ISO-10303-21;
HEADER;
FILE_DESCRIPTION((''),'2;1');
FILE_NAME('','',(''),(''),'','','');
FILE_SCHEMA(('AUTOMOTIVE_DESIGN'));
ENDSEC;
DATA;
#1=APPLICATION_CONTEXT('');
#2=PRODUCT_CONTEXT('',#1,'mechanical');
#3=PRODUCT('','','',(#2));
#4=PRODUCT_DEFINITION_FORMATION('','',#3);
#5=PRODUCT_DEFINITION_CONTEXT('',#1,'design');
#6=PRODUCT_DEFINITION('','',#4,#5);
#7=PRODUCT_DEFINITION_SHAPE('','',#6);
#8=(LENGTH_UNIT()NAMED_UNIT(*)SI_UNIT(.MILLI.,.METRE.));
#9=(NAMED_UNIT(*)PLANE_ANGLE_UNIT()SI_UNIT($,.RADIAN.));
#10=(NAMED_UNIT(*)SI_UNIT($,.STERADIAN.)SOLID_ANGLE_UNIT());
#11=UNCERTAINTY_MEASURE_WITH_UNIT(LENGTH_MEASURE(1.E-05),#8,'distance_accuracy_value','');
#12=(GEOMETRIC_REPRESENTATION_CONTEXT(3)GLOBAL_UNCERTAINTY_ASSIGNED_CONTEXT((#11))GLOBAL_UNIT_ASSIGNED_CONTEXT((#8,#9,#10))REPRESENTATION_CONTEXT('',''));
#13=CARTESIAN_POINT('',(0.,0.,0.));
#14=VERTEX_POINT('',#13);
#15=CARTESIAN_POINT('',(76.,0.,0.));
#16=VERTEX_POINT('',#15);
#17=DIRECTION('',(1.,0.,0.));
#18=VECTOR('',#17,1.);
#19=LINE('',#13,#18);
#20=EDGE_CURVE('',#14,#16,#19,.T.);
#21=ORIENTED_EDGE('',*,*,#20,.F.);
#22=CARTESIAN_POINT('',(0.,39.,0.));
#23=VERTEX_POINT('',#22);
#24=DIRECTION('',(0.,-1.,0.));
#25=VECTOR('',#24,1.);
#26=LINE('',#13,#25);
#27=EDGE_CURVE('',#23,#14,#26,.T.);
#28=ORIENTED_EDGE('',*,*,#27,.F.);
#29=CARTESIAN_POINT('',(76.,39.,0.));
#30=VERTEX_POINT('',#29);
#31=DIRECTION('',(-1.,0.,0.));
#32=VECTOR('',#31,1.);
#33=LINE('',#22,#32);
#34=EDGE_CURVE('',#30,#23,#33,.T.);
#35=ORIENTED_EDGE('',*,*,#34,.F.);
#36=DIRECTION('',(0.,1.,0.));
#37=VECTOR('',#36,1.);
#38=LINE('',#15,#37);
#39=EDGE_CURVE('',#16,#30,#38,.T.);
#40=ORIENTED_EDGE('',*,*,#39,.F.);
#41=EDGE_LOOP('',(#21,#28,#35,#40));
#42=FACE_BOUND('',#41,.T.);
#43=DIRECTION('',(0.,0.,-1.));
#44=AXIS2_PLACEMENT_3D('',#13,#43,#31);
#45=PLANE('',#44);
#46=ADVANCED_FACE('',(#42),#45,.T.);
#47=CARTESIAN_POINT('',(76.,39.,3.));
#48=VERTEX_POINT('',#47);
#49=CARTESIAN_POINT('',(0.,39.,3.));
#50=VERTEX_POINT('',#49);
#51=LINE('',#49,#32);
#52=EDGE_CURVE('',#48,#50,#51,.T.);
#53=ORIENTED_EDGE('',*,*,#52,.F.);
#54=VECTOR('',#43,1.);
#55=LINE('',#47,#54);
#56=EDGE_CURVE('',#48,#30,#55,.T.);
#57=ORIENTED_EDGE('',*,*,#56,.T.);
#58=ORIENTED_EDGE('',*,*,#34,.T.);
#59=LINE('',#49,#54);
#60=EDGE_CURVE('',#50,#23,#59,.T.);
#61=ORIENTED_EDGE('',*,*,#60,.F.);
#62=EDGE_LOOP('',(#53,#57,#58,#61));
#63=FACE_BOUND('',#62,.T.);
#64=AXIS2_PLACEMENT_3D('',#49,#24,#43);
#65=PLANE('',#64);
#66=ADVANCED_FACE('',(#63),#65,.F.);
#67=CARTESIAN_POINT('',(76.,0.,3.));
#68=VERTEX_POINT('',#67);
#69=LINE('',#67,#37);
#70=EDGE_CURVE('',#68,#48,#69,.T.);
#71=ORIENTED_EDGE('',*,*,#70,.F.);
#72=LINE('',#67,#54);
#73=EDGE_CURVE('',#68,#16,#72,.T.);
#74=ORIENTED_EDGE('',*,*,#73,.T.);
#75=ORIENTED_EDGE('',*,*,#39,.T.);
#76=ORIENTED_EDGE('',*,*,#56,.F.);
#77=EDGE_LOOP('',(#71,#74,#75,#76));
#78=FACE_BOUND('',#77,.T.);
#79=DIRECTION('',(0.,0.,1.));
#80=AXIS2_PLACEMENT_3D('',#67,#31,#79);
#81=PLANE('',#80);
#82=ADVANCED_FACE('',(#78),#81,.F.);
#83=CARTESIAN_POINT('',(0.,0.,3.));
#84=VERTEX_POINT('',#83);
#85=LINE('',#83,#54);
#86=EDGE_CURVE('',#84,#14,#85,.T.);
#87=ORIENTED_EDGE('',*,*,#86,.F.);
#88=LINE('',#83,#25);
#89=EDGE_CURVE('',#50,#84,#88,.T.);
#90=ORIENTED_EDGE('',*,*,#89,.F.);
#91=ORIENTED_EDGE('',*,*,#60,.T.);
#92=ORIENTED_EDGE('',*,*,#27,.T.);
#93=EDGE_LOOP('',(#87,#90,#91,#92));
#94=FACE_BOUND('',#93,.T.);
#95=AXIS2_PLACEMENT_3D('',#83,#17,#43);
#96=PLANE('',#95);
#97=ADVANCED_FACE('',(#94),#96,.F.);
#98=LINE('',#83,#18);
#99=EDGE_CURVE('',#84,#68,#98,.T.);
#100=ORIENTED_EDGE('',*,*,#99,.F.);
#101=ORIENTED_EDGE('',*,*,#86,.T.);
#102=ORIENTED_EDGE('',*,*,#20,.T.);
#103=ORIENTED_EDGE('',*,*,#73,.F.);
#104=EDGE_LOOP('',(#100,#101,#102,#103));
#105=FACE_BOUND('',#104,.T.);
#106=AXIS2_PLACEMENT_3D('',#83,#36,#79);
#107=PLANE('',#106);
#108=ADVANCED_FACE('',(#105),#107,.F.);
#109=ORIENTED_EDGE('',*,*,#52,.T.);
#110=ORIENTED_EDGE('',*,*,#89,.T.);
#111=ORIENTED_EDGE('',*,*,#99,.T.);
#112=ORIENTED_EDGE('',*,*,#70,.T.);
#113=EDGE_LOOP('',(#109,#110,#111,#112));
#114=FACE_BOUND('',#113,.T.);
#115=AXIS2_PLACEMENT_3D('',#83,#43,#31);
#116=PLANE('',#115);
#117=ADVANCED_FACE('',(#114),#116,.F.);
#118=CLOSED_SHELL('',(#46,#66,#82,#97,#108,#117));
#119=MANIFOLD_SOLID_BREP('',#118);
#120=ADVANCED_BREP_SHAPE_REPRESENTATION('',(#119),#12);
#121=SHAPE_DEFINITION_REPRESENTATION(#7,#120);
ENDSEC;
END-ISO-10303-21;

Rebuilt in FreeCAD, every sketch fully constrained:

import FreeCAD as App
import Part
import Sketcher

V = App.Vector
Q = App.Units.Quantity

doc = App.newDocument("Part")
body = doc.addObject("PartDesign::Body", "Body")

# Sketch on XY plane
sketch1 = body.newObject("Sketcher::SketchObject", "Sketch")
sketch1.AttachmentSupport = (doc.getObject("XY_Plane"), [""])
sketch1.MapMode = "FlatFace"
sketch1.addGeometry([
    Part.LineSegment(V(0, 39, 0), V(0, 0, 0)),
    Part.LineSegment(V(0, 0, 0), V(76, 0, 0)),
    Part.LineSegment(V(76, 0, 0), V(76, 39, 0)),
    Part.LineSegment(V(76, 39, 0), V(0, 39, 0)),
], False)
sketch1.addConstraint([
    Sketcher.Constraint("Coincident", 0, 2, 1, 1),
    Sketcher.Constraint("Coincident", 1, 2, 2, 1),
    Sketcher.Constraint("Coincident", 2, 2, 3, 1),
    Sketcher.Constraint("Coincident", 3, 2, 0, 1),
    Sketcher.Constraint("Vertical", 0),
    Sketcher.Constraint("Horizontal", 1),
    Sketcher.Constraint("Vertical", 2),
    Sketcher.Constraint("Horizontal", 3),
    Sketcher.Constraint("Coincident", 0, 2, -1, 1),
    Sketcher.Constraint("DistanceX", 1, 1, 1, 2, Q("76 mm")),
    Sketcher.Constraint("DistanceY", 0, 2, 0, 1, Q("39 mm")),
])
pad1 = body.newObject("PartDesign::Pad", "Pad")
pad1.Profile = sketch1
pad1.Length = 3

doc.recompute()
